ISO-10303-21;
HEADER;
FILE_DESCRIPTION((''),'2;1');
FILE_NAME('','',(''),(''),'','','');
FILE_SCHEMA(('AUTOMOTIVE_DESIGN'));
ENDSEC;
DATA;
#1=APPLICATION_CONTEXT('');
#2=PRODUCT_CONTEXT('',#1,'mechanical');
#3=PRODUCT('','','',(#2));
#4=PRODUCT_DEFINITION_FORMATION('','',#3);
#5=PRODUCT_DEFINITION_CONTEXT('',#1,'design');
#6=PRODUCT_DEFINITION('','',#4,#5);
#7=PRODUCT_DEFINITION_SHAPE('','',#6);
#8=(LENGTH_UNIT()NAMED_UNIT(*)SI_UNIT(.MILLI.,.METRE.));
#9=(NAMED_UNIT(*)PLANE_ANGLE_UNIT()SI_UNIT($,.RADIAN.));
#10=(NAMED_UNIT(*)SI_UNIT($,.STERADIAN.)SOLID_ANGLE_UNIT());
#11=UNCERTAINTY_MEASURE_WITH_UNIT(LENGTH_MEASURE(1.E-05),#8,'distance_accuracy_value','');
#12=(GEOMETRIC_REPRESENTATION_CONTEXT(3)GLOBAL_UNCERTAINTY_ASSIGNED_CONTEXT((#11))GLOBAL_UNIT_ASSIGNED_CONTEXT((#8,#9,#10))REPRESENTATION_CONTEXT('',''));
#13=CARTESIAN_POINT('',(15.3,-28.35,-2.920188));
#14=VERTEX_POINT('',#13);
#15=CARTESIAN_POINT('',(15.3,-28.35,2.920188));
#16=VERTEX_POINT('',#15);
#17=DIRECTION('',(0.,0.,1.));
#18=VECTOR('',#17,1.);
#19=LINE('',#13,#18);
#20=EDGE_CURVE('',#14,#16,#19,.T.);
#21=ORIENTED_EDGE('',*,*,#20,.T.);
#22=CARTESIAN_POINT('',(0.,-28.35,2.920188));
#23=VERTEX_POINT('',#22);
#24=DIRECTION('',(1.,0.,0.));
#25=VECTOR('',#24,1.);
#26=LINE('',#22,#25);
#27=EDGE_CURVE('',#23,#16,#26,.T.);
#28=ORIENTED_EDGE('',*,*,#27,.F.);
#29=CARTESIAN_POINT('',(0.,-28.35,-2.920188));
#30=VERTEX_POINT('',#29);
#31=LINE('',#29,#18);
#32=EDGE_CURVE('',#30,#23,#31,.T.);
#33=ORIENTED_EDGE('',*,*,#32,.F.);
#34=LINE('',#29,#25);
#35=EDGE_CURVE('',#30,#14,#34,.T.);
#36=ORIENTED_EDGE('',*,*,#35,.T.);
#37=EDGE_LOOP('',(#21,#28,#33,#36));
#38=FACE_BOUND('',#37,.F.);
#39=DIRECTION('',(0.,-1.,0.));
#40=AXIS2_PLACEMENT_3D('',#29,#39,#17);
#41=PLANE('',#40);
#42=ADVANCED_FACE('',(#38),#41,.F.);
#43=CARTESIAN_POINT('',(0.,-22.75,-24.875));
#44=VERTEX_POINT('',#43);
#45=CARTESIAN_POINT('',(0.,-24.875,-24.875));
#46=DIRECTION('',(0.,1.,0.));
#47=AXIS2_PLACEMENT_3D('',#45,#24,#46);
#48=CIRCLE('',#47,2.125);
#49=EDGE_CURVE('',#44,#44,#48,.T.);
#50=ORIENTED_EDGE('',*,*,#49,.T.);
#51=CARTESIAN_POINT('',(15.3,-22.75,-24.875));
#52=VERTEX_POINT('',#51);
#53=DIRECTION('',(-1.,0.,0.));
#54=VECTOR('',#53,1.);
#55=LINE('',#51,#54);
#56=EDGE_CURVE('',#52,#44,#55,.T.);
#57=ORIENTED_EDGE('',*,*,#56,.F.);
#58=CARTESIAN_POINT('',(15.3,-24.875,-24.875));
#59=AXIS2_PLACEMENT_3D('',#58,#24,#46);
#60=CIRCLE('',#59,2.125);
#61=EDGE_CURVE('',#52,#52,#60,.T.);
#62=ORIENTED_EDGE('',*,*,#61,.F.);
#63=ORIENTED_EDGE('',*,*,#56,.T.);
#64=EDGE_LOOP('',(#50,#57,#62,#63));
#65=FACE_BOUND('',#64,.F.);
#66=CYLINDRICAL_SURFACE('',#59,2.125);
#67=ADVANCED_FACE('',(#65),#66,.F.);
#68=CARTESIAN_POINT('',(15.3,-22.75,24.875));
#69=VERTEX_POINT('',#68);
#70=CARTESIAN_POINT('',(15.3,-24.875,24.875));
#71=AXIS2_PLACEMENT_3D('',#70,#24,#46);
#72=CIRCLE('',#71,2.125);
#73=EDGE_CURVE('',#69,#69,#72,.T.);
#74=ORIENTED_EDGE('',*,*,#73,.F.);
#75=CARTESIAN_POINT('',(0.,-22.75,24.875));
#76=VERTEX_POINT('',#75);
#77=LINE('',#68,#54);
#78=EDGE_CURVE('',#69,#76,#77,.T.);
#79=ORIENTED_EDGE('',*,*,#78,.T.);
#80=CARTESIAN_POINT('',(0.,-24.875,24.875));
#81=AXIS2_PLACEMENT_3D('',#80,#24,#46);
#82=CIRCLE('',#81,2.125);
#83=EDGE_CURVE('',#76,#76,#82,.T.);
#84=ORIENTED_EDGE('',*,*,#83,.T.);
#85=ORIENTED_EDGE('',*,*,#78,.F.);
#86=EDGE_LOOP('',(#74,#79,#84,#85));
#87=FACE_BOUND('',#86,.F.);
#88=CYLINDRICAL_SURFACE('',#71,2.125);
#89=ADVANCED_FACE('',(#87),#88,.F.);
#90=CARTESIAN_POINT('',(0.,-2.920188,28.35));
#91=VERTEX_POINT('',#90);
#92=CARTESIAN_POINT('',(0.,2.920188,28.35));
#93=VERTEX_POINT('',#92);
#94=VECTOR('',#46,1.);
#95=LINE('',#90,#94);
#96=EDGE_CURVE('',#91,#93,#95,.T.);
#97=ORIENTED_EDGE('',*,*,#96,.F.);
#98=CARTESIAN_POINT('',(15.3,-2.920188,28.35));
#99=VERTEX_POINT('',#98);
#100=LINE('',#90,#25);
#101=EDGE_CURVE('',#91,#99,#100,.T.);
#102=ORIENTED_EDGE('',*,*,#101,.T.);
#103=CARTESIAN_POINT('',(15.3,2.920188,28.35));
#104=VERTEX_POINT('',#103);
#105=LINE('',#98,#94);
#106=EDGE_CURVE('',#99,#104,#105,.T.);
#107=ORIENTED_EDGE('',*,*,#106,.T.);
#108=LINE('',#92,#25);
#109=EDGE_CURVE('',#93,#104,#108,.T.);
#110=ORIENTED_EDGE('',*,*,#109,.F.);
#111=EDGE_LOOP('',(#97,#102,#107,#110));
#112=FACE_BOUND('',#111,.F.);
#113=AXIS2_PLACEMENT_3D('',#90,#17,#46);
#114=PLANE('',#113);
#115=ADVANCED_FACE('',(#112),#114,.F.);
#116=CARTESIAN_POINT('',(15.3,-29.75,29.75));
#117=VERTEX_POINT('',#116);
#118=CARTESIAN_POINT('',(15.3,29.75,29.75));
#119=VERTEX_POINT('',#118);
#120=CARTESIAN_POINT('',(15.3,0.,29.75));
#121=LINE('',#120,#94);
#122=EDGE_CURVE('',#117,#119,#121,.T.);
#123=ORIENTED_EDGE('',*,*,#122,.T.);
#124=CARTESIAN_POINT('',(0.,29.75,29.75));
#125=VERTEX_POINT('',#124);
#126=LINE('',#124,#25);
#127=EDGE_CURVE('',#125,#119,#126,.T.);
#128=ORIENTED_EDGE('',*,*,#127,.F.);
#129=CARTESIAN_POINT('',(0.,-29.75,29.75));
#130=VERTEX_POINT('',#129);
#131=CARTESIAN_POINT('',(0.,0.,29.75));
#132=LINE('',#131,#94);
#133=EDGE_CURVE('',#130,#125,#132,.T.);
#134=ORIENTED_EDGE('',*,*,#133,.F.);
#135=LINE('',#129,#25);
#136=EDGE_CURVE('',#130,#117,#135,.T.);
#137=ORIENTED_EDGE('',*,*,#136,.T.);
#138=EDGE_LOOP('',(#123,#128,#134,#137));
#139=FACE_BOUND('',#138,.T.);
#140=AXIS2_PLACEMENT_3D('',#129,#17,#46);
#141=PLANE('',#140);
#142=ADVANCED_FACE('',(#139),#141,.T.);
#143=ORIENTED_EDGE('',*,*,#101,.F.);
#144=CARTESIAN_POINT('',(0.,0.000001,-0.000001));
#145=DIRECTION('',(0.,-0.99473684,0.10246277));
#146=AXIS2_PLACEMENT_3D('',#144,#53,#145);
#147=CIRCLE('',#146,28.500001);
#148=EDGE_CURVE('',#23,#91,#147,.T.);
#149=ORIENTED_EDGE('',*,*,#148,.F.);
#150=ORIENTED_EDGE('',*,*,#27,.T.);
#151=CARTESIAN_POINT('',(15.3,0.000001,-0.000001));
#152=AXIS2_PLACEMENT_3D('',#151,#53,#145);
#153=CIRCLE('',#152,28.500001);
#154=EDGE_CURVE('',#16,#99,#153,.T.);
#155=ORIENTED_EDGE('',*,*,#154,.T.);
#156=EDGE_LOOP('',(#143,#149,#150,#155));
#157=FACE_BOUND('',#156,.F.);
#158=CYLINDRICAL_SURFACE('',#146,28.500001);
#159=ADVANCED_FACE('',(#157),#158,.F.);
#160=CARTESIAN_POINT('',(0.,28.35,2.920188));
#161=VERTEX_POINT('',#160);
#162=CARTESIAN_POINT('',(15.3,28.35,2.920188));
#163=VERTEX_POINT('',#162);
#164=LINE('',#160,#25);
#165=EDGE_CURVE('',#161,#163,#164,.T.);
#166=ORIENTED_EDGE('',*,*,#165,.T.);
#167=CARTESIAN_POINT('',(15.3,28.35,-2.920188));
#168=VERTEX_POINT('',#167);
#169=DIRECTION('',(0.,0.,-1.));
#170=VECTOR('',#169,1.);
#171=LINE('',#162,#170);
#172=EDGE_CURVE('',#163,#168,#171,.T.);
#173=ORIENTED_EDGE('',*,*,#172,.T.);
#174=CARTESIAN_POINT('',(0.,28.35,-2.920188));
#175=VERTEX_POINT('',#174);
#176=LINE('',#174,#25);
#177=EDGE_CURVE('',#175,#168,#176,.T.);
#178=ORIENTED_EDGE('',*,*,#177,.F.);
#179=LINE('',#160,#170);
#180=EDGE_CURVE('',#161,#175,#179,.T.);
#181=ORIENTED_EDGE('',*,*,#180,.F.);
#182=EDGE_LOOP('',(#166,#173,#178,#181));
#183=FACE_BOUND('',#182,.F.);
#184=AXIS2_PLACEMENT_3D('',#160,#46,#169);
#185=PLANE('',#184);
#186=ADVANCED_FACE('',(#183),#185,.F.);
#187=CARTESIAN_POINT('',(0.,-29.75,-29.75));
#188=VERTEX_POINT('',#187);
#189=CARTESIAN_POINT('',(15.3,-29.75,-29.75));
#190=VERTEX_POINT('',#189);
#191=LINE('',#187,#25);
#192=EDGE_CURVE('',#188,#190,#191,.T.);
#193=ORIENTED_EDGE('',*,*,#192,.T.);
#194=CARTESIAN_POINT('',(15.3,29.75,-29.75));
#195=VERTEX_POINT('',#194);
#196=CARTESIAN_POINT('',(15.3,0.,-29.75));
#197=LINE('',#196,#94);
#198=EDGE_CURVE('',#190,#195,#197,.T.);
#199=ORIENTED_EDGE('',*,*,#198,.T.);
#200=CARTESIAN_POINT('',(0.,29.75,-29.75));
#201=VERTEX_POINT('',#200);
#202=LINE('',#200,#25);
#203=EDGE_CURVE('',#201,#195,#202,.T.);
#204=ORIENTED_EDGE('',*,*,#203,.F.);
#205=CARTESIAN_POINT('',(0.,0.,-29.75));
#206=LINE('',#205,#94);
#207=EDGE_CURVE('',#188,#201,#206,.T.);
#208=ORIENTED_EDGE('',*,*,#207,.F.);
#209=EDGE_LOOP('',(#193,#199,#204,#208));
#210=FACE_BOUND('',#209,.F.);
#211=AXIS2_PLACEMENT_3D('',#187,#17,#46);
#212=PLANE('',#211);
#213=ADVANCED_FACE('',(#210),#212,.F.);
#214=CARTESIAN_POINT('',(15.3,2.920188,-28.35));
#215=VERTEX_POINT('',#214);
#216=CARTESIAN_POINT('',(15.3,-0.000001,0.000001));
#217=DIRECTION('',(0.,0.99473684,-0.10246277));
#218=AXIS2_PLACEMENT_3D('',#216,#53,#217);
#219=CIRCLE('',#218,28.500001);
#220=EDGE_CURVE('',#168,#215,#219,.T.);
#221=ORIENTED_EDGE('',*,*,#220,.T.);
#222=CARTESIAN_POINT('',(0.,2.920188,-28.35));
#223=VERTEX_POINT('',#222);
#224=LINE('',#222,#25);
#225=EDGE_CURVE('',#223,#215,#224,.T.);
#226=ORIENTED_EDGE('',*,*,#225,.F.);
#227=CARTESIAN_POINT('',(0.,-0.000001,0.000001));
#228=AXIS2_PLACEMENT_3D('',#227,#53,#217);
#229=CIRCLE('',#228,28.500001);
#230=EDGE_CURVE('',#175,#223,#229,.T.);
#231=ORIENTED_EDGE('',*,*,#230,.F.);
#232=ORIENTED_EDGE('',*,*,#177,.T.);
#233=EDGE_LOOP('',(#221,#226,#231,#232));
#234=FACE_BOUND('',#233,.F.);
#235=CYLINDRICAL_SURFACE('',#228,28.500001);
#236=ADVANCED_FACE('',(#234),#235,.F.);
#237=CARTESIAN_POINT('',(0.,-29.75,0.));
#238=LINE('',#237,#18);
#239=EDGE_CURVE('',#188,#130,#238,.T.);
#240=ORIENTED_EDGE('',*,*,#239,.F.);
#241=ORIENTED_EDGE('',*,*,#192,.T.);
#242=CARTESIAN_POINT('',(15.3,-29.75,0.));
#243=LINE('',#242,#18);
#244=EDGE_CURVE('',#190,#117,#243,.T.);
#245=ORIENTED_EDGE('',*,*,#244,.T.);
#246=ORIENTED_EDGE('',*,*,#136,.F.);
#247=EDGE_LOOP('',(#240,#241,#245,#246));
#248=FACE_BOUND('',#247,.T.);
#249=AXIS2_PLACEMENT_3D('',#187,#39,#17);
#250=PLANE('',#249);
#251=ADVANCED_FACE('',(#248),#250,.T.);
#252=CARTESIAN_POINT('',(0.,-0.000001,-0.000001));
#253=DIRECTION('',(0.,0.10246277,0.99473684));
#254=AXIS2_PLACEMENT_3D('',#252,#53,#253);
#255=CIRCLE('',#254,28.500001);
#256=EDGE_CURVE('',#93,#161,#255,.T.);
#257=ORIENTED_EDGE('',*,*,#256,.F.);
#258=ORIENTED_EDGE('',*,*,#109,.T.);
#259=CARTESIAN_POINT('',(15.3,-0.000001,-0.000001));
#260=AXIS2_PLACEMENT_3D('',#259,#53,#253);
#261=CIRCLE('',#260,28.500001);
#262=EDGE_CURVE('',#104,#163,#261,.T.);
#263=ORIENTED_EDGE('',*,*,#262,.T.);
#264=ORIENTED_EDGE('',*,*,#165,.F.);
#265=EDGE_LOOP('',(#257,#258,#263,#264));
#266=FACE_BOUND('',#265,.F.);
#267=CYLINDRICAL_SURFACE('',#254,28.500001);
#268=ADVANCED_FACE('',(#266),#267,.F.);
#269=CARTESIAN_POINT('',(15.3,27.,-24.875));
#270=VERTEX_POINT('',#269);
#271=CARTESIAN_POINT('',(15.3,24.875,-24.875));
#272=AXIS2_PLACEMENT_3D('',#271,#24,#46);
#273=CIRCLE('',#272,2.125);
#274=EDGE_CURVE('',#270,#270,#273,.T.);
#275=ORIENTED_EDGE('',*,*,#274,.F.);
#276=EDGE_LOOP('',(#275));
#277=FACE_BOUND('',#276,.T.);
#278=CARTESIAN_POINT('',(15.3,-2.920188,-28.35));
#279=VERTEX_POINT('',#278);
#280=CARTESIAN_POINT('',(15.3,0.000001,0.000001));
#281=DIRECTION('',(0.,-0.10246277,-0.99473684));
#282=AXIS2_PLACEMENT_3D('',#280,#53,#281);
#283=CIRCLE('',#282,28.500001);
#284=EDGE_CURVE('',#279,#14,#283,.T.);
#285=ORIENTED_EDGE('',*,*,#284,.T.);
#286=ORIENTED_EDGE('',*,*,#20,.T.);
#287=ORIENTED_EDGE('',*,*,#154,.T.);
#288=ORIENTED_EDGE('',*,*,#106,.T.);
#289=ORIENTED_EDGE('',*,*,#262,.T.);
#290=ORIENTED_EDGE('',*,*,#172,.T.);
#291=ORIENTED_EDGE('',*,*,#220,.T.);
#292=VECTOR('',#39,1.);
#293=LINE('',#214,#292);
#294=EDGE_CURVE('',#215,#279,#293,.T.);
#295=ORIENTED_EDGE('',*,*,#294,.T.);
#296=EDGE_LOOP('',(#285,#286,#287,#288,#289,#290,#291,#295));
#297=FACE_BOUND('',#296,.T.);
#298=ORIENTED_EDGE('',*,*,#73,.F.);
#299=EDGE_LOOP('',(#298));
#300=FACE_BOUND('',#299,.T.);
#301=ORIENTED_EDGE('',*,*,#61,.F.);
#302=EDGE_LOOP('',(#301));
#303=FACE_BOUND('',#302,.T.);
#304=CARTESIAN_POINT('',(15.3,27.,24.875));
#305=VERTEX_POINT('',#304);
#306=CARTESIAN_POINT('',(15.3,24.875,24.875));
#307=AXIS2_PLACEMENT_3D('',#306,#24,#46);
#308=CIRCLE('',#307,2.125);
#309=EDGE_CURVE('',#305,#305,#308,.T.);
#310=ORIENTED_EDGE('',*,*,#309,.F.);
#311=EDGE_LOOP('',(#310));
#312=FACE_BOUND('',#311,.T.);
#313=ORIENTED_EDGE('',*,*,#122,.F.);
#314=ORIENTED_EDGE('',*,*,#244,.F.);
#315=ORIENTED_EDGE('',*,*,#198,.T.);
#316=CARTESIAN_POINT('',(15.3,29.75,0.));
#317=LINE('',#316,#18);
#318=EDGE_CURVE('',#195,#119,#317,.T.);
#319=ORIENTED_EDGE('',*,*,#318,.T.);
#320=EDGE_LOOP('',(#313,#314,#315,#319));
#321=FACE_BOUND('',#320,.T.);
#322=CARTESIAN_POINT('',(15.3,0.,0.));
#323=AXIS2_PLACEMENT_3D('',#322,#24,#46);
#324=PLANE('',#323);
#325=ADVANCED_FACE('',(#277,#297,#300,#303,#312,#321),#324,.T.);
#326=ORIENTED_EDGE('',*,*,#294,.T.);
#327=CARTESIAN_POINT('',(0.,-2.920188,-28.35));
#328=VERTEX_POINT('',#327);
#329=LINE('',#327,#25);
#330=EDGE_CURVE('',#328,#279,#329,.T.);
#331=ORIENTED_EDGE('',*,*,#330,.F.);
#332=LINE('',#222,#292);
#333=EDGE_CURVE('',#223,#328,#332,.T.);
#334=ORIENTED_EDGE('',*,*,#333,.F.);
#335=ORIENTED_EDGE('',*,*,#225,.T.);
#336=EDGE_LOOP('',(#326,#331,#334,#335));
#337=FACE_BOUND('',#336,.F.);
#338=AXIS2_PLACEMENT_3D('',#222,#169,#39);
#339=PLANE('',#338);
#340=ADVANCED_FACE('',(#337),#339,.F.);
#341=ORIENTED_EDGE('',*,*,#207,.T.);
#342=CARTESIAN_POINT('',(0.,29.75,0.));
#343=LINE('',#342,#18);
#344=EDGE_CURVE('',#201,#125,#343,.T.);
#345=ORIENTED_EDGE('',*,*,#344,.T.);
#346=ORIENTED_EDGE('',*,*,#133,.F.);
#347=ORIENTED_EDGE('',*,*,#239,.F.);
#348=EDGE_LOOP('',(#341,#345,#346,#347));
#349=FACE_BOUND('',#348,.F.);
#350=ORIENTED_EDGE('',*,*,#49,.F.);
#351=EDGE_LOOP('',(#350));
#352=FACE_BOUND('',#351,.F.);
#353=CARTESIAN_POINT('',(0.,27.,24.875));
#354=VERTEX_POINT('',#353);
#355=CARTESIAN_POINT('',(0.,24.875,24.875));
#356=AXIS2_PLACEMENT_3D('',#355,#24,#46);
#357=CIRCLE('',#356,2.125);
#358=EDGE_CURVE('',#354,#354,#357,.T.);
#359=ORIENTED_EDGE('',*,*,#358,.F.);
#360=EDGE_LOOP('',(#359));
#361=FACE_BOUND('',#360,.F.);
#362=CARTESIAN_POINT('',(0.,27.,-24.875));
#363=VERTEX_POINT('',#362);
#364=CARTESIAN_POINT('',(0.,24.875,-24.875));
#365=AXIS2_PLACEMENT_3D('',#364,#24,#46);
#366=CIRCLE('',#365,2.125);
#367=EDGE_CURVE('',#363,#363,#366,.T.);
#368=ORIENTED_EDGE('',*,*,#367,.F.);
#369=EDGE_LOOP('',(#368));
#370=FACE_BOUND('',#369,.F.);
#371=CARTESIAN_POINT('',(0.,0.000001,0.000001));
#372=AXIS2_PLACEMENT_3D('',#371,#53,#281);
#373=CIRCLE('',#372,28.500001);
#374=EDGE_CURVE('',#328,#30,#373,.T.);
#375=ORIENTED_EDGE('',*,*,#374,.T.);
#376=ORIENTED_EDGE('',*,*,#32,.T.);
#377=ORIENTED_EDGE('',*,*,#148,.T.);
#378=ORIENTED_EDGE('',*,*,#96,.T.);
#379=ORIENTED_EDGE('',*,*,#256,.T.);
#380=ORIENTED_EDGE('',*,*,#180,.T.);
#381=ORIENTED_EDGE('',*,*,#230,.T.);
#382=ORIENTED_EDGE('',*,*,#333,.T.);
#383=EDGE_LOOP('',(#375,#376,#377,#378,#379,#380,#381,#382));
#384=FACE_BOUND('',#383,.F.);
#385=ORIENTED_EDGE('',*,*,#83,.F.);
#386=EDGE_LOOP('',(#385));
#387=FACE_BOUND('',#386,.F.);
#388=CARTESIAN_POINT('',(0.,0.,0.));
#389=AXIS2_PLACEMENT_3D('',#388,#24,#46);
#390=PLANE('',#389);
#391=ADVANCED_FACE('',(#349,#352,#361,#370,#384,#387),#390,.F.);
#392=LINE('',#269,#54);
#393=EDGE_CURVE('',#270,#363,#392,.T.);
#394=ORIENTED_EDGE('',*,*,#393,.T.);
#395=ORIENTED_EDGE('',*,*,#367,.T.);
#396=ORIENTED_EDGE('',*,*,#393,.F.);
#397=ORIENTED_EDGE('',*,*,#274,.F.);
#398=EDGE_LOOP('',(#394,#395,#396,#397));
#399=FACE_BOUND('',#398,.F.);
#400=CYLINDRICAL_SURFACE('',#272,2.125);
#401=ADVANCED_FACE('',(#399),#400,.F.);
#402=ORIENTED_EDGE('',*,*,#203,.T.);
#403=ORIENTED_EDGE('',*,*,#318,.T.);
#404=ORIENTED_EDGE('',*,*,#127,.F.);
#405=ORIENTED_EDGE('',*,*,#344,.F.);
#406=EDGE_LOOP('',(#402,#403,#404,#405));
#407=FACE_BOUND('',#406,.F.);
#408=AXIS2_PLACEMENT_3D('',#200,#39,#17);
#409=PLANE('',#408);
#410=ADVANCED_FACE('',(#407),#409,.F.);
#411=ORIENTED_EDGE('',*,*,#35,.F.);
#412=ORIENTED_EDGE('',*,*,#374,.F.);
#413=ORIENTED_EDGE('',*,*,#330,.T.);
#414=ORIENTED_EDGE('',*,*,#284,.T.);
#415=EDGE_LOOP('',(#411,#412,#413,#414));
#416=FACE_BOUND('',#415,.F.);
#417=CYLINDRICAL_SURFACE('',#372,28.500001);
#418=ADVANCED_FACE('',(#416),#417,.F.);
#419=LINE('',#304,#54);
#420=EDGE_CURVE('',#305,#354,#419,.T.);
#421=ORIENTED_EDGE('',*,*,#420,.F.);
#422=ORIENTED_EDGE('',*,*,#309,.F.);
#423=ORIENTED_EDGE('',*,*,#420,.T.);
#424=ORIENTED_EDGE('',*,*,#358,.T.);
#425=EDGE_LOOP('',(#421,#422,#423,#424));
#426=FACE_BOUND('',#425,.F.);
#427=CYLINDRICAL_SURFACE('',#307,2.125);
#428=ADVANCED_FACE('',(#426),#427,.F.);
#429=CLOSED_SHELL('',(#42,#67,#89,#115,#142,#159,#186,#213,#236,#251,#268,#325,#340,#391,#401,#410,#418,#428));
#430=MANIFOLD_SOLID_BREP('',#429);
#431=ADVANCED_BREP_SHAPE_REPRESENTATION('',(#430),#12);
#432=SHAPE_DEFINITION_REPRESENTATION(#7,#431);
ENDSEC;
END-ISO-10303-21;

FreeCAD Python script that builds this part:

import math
import FreeCAD as App
import Part
import Sketcher
from FreeCAD import Vector

doc = App.newDocument("Part")
params = doc.addObject("Spreadsheet::Sheet", "Params")
for row, (alias, value) in enumerate([
    ("sketch1_radius", "28.500001 mm"),
    ("sketch1_width", "59.5 mm"),
    ("pad1_length", "15.3 mm"),
    ("sketch2_diameter", "4.25 mm"),
    ("pocket1_length", "25 mm"),
], start=1):
    params.set(f"A{row}", alias)
    params.set(f"B{row}", "=" + value)
    params.setAlias(f"B{row}", alias)

body = doc.addObject("PartDesign::Body", "Body")

# Sketch on YZ plane
sketch1 = body.newObject("Sketcher::SketchObject", "Sketch")
sketch1.AttachmentSupport = (doc.getObject("YZ_Plane"), [""])
sketch1.MapMode = "FlatFace"
sketch1.addGeometry([
    Part.LineSegment(Vector(-29.75, 29.75, 0), Vector(-29.75, -29.75, 0)),  # 0
    Part.LineSegment(Vector(-29.75, -29.75, 0), Vector(29.75, -29.75, 0)),  # 1
    Part.LineSegment(Vector(29.75, -29.75, 0), Vector(29.75, 29.75, 0)),  # 2
    Part.LineSegment(Vector(29.75, 29.75, 0), Vector(-29.75, 29.75, 0)),  # 3
    Part.LineSegment(Vector(2.920188, -28.35, 0), Vector(-2.920188, -28.35, 0)),  # 4
    Part.ArcOfCircle(Part.Circle(Vector(0.000001, 0.000001, 0), Vector(0, 0, 1), 28.500001), math.radians(-174.118995), math.radians(-95.881005)),  # 5
    Part.LineSegment(Vector(-28.35, -2.920188, 0), Vector(-28.35, 2.920188, 0)),  # 6
    Part.ArcOfCircle(Part.Circle(Vector(0.000001, -0.000001, 0), Vector(0, 0, 1), 28.500001), math.radians(95.881005), math.radians(174.118995)),  # 7
    Part.LineSegment(Vector(-2.920188, 28.35, 0), Vector(2.920188, 28.35, 0)),  # 8
    Part.ArcOfCircle(Part.Circle(Vector(-0.000001, -0.000001, 0), Vector(0, 0, 1), 28.500001), math.radians(5.881005), math.radians(84.118995)),  # 9
    Part.LineSegment(Vector(28.35, 2.920188, 0), Vector(28.35, -2.920188, 0)),  # 10
    Part.ArcOfCircle(Part.Circle(Vector(-0.000001, 0.000001, 0), Vector(0, 0, 1), 28.500001), math.radians(-84.118995), math.radians(-5.881005)),  # 11
], False)
sketch1.addConstraint([
    Sketcher.Constraint("Coincident", 0, 2, 1, 1),
    Sketcher.Constraint("Coincident", 1, 2, 2, 1),
    Sketcher.Constraint("Coincident", 2, 2, 3, 1),
    Sketcher.Constraint("Coincident", 3, 2, 0, 1),
    Sketcher.Constraint("Coincident", 4, 2, 5, 2),
    Sketcher.Constraint("Coincident", 5, 1, 6, 1),
    Sketcher.Constraint("Coincident", 6, 2, 7, 2),
    Sketcher.Constraint("Coincident", 7, 1, 8, 1),
    Sketcher.Constraint("Coincident", 8, 2, 9, 2),
    Sketcher.Constraint("Coincident", 9, 1, 10, 1),
    Sketcher.Constraint("Coincident", 10, 2, 11, 2),
    Sketcher.Constraint("Coincident", 11, 1, 4, 1),
    Sketcher.Constraint("Vertical", 0),
    Sketcher.Constraint("Horizontal", 1),
    Sketcher.Constraint("Vertical", 2),
    Sketcher.Constraint("Horizontal", 3),
    Sketcher.Constraint("Horizontal", 4),
    Sketcher.Constraint("Vertical", 6),
    Sketcher.Constraint("Horizontal", 8),
    Sketcher.Constraint("Vertical", 10),
    Sketcher.Constraint("Coincident", 5, 3, -1, 1),
    Sketcher.Constraint("Coincident", 7, 3, -1, 1),
    Sketcher.Constraint("Coincident", 9, 3, -1, 1),
    Sketcher.Constraint("Coincident", 11, 3, -1, 1),
    Sketcher.Constraint("Equal", 5, 7),
    Sketcher.Constraint("Equal", 7, 9),
    Sketcher.Constraint("Equal", 9, 11),
    Sketcher.Constraint("Symmetric", 0, 2, 2, 2, -1, 1),
    Sketcher.Constraint("Horizontal", 6, 2, 9, 1),
    Sketcher.Constraint("Vertical", 4, 2, 7, 1),
    Sketcher.Constraint("Equal", 3, 0),
    Sketcher.Constraint("Equal", 8, 6),
    Sketcher.Constraint("Radius", 5, 28.500001),
    Sketcher.Constraint("DistanceX", 1, 1, 1, 2, 59.5),
    Sketcher.Constraint("DistanceY", 0, 2, 4, 2, 1.4),
])
sketch1.setExpression("Constraints[32]", "Params.sketch1_radius")
sketch1.setExpression("Constraints[33]", "Params.sketch1_width")
pad1 = body.newObject("PartDesign::Pad", "Pad")
pad1.Profile = sketch1
pad1.setExpression("Length", "Params.pad1_length")

# Sketch on YZ plane
sketch2 = body.newObject("Sketcher::SketchObject", "Sketch001")
sketch2.AttachmentSupport = (doc.getObject("YZ_Plane"), [""])
sketch2.MapMode = "FlatFace"
sketch2.AttachmentOffset = App.Placement(Vector(0, 0, 15.3), App.Rotation())
sketch2.addGeometry([
    Part.Circle(Vector(-24.875, 24.875, 0), Vector(0, 0, 1), 2.125),
    Part.Circle(Vector(24.875, 24.875, 0), Vector(0, 0, 1), 2.125),
    Part.Circle(Vector(24.875, -24.875, 0), Vector(0, 0, 1), 2.125),
    Part.Circle(Vector(-24.875, -24.875, 0), Vector(0, 0, 1), 2.125),
], False)
sketch2.addConstraint([
    Sketcher.Constraint("Equal", 0, 1),
    Sketcher.Constraint("Equal", 1, 2),
    Sketcher.Constraint("Equal", 2, 3),
    Sketcher.Constraint("Symmetric", 0, 3, 2, 3, -1, 1),
    Sketcher.Constraint("Symmetric", 1, 3, 3, 3, -1, 1),
    Sketcher.Constraint("Symmetric", 0, 3, 1, 3, -2),
    Sketcher.Constraint("Diameter", 0, 4.25),
    Sketcher.Constraint("DistanceX", 0, 3, 1, 3, 49.75),
    Sketcher.Constraint("DistanceY", 2, 3, 1, 3, 49.75),
])
sketch2.setExpression("Constraints[6]", "Params.sketch2_diameter")
pocket1 = body.newObject("PartDesign::Pocket", "Pocket")
pocket1.Profile = sketch2
pocket1.setExpression("Length", "Params.pocket1_length")

doc.recompute()
